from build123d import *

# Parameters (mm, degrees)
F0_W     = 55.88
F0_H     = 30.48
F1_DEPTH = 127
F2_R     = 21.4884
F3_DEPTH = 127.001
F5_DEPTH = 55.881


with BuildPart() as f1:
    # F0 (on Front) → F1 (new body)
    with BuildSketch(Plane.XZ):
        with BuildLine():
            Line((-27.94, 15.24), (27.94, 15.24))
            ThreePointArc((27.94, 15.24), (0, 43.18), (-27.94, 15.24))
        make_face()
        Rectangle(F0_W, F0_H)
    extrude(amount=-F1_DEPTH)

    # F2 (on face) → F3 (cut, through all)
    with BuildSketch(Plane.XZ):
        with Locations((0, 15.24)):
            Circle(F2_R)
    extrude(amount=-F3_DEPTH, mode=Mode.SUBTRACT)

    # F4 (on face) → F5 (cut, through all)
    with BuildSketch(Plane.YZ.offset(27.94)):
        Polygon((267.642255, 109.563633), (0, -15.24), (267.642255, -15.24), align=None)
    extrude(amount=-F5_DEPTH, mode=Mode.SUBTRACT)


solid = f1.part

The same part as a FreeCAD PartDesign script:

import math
import FreeCAD as App
import Part
import Sketcher

V = App.Vector
Q = App.Units.Quantity

doc = App.newDocument("Part")
body = doc.addObject("PartDesign::Body", "Body")

# Sketch on XZ plane
sketch1 = body.newObject("Sketcher::SketchObject", "Sketch")
sketch1.AttachmentSupport = (doc.getObject("XZ_Plane"), [""])
sketch1.MapMode = "FlatFace"
sketch1.addGeometry(Part.ArcOfCircle(Part.Circle(V(0, 15, 0), V(0, 0, 1), 28), math.radians(0), math.radians(180)), False)
sketch1.addGeometry(Part.LineSegment(V(-28, 15, 0), V(-28, -15, 0)), False)
sketch1.addGeometry(Part.LineSegment(V(-28, -15, 0), V(28, -15, 0)), False)
sketch1.addGeometry(Part.LineSegment(V(28, -15, 0), V(28, 15, 0)), False)
sketch1.addConstraint(Sketcher.Constraint("Tangent", 0, 2, 1, 1))
sketch1.addConstraint(Sketcher.Constraint("Coincident", 1, 2, 2, 1))
sketch1.addConstraint(Sketcher.Constraint("Coincident", 2, 2, 3, 1))
sketch1.addConstraint(Sketcher.Constraint("Tangent", 3, 2, 0, 1))
sketch1.addConstraint(Sketcher.Constraint("Vertical", 1))
sketch1.addConstraint(Sketcher.Constraint("Horizontal", 2))
sketch1.addConstraint(Sketcher.Constraint("Vertical", 3))
sketch1.addConstraint(Sketcher.Constraint("Symmetric", 0, 2, 2, 2, -1, 1))
sketch1.addConstraint(Sketcher.Constraint("Radius", 0, Q("1.1 in")))
sketch1.addConstraint(Sketcher.Constraint("DistanceY", 1, 2, 1, 1, Q("1.2 in")))
pad1 = body.newObject("PartDesign::Pad", "Pad")
pad1.Profile = sketch1
pad1.Length = Q("5 in")
pad1.Reversed = True

# Sketch on XZ plane
sketch2 = body.newObject("Sketcher::SketchObject", "Sketch001")
sketch2.AttachmentSupport = (doc.getObject("XZ_Plane"), [""])
sketch2.MapMode = "FlatFace"
sketch2.addGeometry(Part.Circle(V(0, 15, 0), V(0, 0, 1), 21), False)
sketch2.addConstraint(Sketcher.Constraint("PointOnObject", 0, 3, -2))
sketch2.addConstraint(Sketcher.Constraint("Diameter", 0, Q("1.692 in")))
sketch2.addConstraint(Sketcher.Constraint("DistanceY", -1, 1, 0, 3, Q("0.6 in")))
pocket1 = body.newObject("PartDesign::Pocket", "Pocket")
pocket1.Profile = sketch2
pocket1.Type = "ThroughAll"

# Sketch on YZ plane
sketch3 = body.newObject("Sketcher::SketchObject", "Sketch002")
sketch3.AttachmentSupport = (doc.getObject("YZ_Plane"), [""])
sketch3.MapMode = "FlatFace"
sketch3.AttachmentOffset = App.Placement(V(0, 0, 1.1 * 25.4), App.Rotation())
sketch3.addGeometry(Part.LineSegment(V(268, 110, 0), V(0, -15, 0)), False)
sketch3.addGeometry(Part.LineSegment(V(0, -15, 0), V(268, -15, 0)), False)
sketch3.addGeometry(Part.LineSegment(V(268, -15, 0), V(268, 110, 0)), False)
sketch3.addConstraint(Sketcher.Constraint("Coincident", 0, 2, 1, 1))
sketch3.addConstraint(Sketcher.Constraint("Coincident", 1, 2, 2, 1))
sketch3.addConstraint(Sketcher.Constraint("Coincident", 2, 2, 0, 1))
sketch3.addConstraint(Sketcher.Constraint("Horizontal", 1))
sketch3.addConstraint(Sketcher.Constraint("Vertical", 2))
sketch3.addConstraint(Sketcher.Constraint("PointOnObject", 0, 2, -2))
sketch3.addConstraint(Sketcher.Constraint("Angle", 0, Q("-155 deg")))
sketch3.addConstraint(Sketcher.Constraint("DistanceY", 0, 2, -1, 1, Q("0.6 in")))
sketch3.addConstraint(Sketcher.Constraint("DistanceX", 1, 1, 1, 2, Q("267.642255 mm")))
pocket2 = body.newObject("PartDesign::Pocket", "Pocket001")
pocket2.Profile = sketch3
pocket2.Type = "ThroughAll"

doc.recompute()
